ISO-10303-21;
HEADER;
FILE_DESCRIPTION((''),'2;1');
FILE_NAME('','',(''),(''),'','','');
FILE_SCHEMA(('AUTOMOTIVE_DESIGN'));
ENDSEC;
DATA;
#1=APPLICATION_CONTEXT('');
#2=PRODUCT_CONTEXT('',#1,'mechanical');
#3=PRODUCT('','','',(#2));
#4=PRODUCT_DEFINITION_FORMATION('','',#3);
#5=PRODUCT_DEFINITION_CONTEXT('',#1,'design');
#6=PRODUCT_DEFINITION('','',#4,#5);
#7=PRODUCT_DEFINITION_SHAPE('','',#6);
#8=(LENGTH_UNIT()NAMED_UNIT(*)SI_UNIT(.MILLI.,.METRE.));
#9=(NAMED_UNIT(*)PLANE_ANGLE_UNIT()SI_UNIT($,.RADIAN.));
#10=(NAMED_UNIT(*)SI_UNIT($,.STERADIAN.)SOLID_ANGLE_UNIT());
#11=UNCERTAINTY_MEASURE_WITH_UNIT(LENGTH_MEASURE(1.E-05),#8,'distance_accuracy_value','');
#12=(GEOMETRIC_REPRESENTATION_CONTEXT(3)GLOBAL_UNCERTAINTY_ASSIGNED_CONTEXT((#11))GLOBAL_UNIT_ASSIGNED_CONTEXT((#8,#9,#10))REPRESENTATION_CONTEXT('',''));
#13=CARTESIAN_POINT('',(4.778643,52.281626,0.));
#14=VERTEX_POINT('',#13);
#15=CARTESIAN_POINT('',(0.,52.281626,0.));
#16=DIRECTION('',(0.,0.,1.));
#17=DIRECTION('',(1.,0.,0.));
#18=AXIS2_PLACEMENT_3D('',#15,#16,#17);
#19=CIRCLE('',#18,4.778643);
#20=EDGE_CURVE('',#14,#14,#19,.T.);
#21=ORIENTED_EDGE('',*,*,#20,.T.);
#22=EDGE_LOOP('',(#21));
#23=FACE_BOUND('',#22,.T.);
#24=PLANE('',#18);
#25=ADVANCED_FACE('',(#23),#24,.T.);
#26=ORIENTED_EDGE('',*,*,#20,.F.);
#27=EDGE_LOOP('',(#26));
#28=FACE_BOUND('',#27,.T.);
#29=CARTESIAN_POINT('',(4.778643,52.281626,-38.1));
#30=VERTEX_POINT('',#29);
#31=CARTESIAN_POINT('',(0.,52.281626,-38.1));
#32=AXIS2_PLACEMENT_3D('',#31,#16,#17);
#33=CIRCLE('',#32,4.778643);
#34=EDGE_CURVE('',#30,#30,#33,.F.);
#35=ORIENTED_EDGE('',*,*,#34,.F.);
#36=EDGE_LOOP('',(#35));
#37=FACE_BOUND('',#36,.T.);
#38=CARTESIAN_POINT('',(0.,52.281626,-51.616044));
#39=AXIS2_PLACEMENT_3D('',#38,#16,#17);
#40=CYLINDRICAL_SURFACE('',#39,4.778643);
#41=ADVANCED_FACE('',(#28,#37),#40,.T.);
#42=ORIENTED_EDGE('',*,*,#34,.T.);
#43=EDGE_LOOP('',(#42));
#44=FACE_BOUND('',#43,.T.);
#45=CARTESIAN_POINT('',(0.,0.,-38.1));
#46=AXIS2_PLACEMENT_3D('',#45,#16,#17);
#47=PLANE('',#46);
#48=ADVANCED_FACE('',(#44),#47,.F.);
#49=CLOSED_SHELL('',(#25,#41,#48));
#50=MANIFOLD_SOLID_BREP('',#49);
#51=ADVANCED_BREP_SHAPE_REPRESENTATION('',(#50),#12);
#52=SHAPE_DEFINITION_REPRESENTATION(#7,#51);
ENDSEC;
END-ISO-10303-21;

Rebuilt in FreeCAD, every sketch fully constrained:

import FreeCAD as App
import Part
import Sketcher

V = App.Vector

doc = App.newDocument("Part")
params = doc.addObject("Spreadsheet::Sheet", "Params")
for row, (alias, value) in enumerate([
    ("pad1_length", "1.5 in"),
], start=1):
    params.set(f"A{row}", alias)
    params.set(f"B{row}", "=" + value)
    params.setAlias(f"B{row}", alias)

body = doc.addObject("PartDesign::Body", "Body")

sketch1 = body.newObject("Sketcher::SketchObject", "Sketch")
sketch1.AttachmentSupport = (doc.getObject("XY_Plane"), [""])
sketch1.MapMode = "FlatFace"
sketch1.addGeometry(Part.Circle(V(0, 52.3, 0), V(0, 0, 1), 4.8), False)
sketch1.addConstraint(Sketcher.Constraint("PointOnObject", 0, 3, -2))
sketch1.addConstraint(Sketcher.Constraint("Diameter", 0, 9.557286))
sketch1.addConstraint(Sketcher.Constraint("DistanceY", -1, 1, 0, 3, 52.281626))
pad1 = body.newObject("PartDesign::Pad", "Pad")
pad1.Profile = sketch1
pad1.setExpression("Length", "Params.pad1_length")
pad1.Reversed = True

doc.recompute()
